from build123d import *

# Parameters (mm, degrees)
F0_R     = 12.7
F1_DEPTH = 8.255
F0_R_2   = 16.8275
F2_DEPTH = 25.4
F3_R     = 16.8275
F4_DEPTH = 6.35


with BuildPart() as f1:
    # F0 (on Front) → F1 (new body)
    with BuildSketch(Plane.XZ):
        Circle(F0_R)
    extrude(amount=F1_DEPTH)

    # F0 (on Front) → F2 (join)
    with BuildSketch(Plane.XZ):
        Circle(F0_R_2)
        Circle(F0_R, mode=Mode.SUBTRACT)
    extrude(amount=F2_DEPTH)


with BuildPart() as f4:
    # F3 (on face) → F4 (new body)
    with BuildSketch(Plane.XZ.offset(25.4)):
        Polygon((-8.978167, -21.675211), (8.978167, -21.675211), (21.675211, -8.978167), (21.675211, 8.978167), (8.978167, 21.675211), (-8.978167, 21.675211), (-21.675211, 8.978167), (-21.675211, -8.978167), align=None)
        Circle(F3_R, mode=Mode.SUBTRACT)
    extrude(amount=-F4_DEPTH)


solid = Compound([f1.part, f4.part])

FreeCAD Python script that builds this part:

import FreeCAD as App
import Part
import Sketcher

V = App.Vector
Q = App.Units.Quantity

doc = App.newDocument("Part")
params = doc.addObject("Spreadsheet::Sheet", "Params")
for row, (alias, value) in enumerate([
    ("sketch1_diameter", "1 in"),
    ("pad1_length", "0.325 in"),
    ("sketch2_diameter", "1 in"),
    ("sketch2_diameter2", "1.325 in"),
    ("pad2_length", "1 in"),
    ("sketch3_diameter", "1.325 in"),
    ("pad3_length", "0.25 in"),
], start=1):
    params.set(f"A{row}", alias)
    params.set(f"B{row}", "=" + value)
    params.setAlias(f"B{row}", alias)

body = doc.addObject("PartDesign::Body", "Body")

# Sketch on XZ plane
sketch1 = body.newObject("Sketcher::SketchObject", "Sketch")
sketch1.AttachmentSupport = (doc.getObject("XZ_Plane"), [""])
sketch1.MapMode = "FlatFace"
sketch1.addGeometry(Part.Circle(V(0, 0, 0), V(0, 0, 1), 13), False)
sketch1.addConstraint(Sketcher.Constraint("Coincident", 0, 3, -1, 1))
sketch1.addConstraint(Sketcher.Constraint("Diameter", 0, Q("1 in")))
sketch1.setExpression("Constraints[1]", "Params.sketch1_diameter")
pad1 = body.newObject("PartDesign::Pad", "Pad")
pad1.Profile = sketch1
pad1.setExpression("Length", "Params.pad1_length")

# Sketch on XZ plane
sketch2 = body.newObject("Sketcher::SketchObject", "Sketch001")
sketch2.AttachmentSupport = (doc.getObject("XZ_Plane"), [""])
sketch2.MapMode = "FlatFace"
sketch2.addGeometry(Part.Circle(V(0, 0, 0), V(0, 0, 1), 17), False)
sketch2.addGeometry(Part.Circle(V(0, 0, 0), V(0, 0, 1), 13), False)
sketch2.addConstraint(Sketcher.Constraint("Coincident", 0, 3, -1, 1))
sketch2.addConstraint(Sketcher.Constraint("Coincident", 1, 3, -1, 1))
sketch2.addConstraint(Sketcher.Constraint("Diameter", 1, Q("1 in")))
sketch2.addConstraint(Sketcher.Constraint("Diameter", 0, Q("1.325 in")))
sketch2.setExpression("Constraints[2]", "Params.sketch2_diameter")
sketch2.setExpression("Constraints[3]", "Params.sketch2_diameter2")
pad2 = body.newObject("PartDesign::Pad", "Pad001")
pad2.Profile = sketch2
pad2.setExpression("Length", "Params.pad2_length")
body2 = doc.addObject("PartDesign::Body", "Body001")

# Sketch on XZ plane
sketch3 = body2.newObject("Sketcher::SketchObject", "Sketch002")
sketch3.AttachmentSupport = (doc.getObject("XZ_Plane001"), [""])
sketch3.MapMode = "FlatFace"
sketch3.AttachmentOffset = App.Placement(V(0, 0, 1 * 25.4), App.Rotation())
sketch3.addGeometry(Part.LineSegment(V(-9, -22, 0), V(9, -22, 0)), False)
sketch3.addGeometry(Part.LineSegment(V(9, -22, 0), V(22, -9, 0)), False)
sketch3.addGeometry(Part.LineSegment(V(22, -9, 0), V(22, 9, 0)), False)
sketch3.addGeometry(Part.LineSegment(V(22, 9, 0), V(9, 22, 0)), False)
sketch3.addGeometry(Part.LineSegment(V(9, 22, 0), V(-9, 22, 0)), False)
sketch3.addGeometry(Part.LineSegment(V(-9, 22, 0), V(-22, 9, 0)), False)
sketch3.addGeometry(Part.LineSegment(V(-22, 9, 0), V(-22, -9, 0)), False)
sketch3.addGeometry(Part.LineSegment(V(-22, -9, 0), V(-9, -22, 0)), False)
sketch3.addGeometry(Part.Circle(V(0, 0, 0), V(0, 0, 1), 17), False)
sketch3.addConstraint(Sketcher.Constraint("Coincident", 0, 2, 1, 1))
sketch3.addConstraint(Sketcher.Constraint("Coincident", 1, 2, 2, 1))
sketch3.addConstraint(Sketcher.Constraint("Coincident", 2, 2, 3, 1))
sketch3.addConstraint(Sketcher.Constraint("Coincident", 3, 2, 4, 1))
sketch3.addConstraint(Sketcher.Constraint("Coincident", 4, 2, 5, 1))
sketch3.addConstraint(Sketcher.Constraint("Coincident", 5, 2, 6, 1))
sketch3.addConstraint(Sketcher.Constraint("Coincident", 6, 2, 7, 1))
sketch3.addConstraint(Sketcher.Constraint("Coincident", 7, 2, 0, 1))
sketch3.addConstraint(Sketcher.Constraint("Horizontal", 0))
sketch3.addConstraint(Sketcher.Constraint("Vertical", 2))
sketch3.addConstraint(Sketcher.Constraint("Horizontal", 4))
sketch3.addConstraint(Sketcher.Constraint("Vertical", 6))
sketch3.addConstraint(Sketcher.Constraint("Coincident", 8, 3, -1, 1))
sketch3.addConstraint(Sketcher.Constraint("Symmetric", 0, 2, 4, 2, -1, 1))
sketch3.addConstraint(Sketcher.Constraint("Symmetric", 1, 2, 5, 2, -1, 1))
sketch3.addConstraint(Sketcher.Constraint("Perpendicular", 1, 3))
sketch3.addConstraint(Sketcher.Constraint("Perpendicular", 5, 7))
sketch3.addConstraint(Sketcher.Constraint("Horizontal", 2, 2, 5, 2))
sketch3.addConstraint(Sketcher.Constraint("Horizontal", 1, 2, 6, 2))
sketch3.addConstraint(Sketcher.Constraint("Vertical", 0, 2, 3, 2))
sketch3.addConstraint(Sketcher.Constraint("Equal", 4, 2))
sketch3.addConstraint(Sketcher.Constraint("Diameter", 8, Q("1.325 in")))
sketch3.addConstraint(Sketcher.Constraint("Distance", 1, 17.956332))
sketch3.addConstraint(Sketcher.Constraint("DistanceX", 0, 1, 0, 2, 17.956334))
sketch3.setExpression("Constraints[21]", "Params.sketch3_diameter")
pad3 = body2.newObject("PartDesign::Pad", "Pad002")
pad3.Profile = sketch3
pad3.setExpression("Length", "Params.pad3_length")
pad3.Reversed = True

doc.recompute()
